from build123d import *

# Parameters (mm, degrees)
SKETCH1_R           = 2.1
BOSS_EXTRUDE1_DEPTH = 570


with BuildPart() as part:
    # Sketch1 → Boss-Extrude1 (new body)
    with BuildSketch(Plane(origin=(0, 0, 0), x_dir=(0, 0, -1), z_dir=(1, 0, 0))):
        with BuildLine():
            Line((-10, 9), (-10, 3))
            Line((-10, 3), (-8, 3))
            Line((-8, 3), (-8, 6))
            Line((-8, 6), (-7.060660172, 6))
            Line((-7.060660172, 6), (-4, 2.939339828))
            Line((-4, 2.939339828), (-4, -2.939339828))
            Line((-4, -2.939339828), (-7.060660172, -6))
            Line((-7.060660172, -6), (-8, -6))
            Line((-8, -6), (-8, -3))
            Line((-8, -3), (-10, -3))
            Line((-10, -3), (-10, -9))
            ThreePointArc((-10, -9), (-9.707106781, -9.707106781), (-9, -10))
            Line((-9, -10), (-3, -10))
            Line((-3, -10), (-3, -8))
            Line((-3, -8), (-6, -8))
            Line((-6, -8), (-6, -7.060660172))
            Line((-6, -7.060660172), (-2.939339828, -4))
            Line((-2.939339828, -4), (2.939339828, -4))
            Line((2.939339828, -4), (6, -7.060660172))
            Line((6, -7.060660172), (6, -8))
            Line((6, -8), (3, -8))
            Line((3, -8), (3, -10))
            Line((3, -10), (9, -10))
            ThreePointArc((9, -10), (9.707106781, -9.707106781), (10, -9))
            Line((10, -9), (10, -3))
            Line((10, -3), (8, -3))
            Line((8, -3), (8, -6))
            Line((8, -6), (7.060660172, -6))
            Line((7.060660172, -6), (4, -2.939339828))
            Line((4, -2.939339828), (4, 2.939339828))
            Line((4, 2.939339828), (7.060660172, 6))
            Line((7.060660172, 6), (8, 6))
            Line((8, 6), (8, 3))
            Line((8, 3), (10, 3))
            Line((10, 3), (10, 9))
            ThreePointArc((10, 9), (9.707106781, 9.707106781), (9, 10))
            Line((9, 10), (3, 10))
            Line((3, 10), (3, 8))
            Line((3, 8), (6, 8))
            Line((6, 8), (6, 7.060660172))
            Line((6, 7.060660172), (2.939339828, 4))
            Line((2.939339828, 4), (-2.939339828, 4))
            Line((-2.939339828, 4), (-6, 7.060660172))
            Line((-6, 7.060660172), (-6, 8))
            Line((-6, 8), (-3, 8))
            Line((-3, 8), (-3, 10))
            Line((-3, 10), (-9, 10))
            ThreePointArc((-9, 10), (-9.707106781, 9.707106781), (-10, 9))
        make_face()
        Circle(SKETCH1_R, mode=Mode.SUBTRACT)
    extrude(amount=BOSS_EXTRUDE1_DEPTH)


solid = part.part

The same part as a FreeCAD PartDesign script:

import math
import FreeCAD as App
import Part
import Sketcher

doc = App.newDocument("Part")
body = doc.addObject("PartDesign::Body", "Body")

sketch1 = doc.addObject("Sketcher::SketchObject", "Sketch")
body.addObject(sketch1)
sketch1.AttachmentSupport = (doc.YZ_Plane, [""])
sketch1.MapMode = "FlatFace"
sketch1.addGeometry([
    Part.LineSegment(App.Vector(9, 10, 0), App.Vector(3, 10, 0)),
    Part.LineSegment(App.Vector(3, 10, 0), App.Vector(3, 8, 0)),
    Part.LineSegment(App.Vector(3, 8, 0), App.Vector(6, 8, 0)),
    Part.LineSegment(App.Vector(6, 8, 0), App.Vector(6, 7.1, 0)),
    Part.LineSegment(App.Vector(6, 7.1, 0), App.Vector(2.9, 4, 0)),
    Part.LineSegment(App.Vector(2.9, 4, 0), App.Vector(-2.9, 4, 0)),
    Part.LineSegment(App.Vector(-2.9, 4, 0), App.Vector(-6, 7.1, 0)),
    Part.LineSegment(App.Vector(-6, 7.1, 0), App.Vector(-6, 8, 0)),
    Part.LineSegment(App.Vector(-6, 8, 0), App.Vector(-3, 8, 0)),
    Part.LineSegment(App.Vector(-3, 8, 0), App.Vector(-3, 10, 0)),
    Part.LineSegment(App.Vector(-3, 10, 0), App.Vector(-9, 10, 0)),
    Part.ArcOfCircle(Part.Circle(App.Vector(-9, 9, 0), App.Vector(0, 0, 1), 1), math.radians(90), math.radians(180)),
    Part.LineSegment(App.Vector(-10, 9, 0), App.Vector(-10, 3, 0)),
    Part.LineSegment(App.Vector(-10, 3, 0), App.Vector(-8, 3, 0)),
    Part.LineSegment(App.Vector(-8, 3, 0), App.Vector(-8, 6, 0)),
    Part.LineSegment(App.Vector(-8, 6, 0), App.Vector(-7.1, 6, 0)),
    Part.LineSegment(App.Vector(-7.1, 6, 0), App.Vector(-4, 2.9, 0)),
    Part.LineSegment(App.Vector(-4, 2.9, 0), App.Vector(-4, -2.9, 0)),
    Part.LineSegment(App.Vector(-4, -2.9, 0), App.Vector(-7.1, -6, 0)),
    Part.LineSegment(App.Vector(-7.1, -6, 0), App.Vector(-8, -6, 0)),
    Part.LineSegment(App.Vector(-8, -6, 0), App.Vector(-8, -3, 0)),
    Part.LineSegment(App.Vector(-8, -3, 0), App.Vector(-10, -3, 0)),
    Part.LineSegment(App.Vector(-10, -3, 0), App.Vector(-10, -9, 0)),
    Part.ArcOfCircle(Part.Circle(App.Vector(-9, -9, 0), App.Vector(0, 0, 1), 1), math.radians(-180), math.radians(-90)),
    Part.LineSegment(App.Vector(-9, -10, 0), App.Vector(-3, -10, 0)),
    Part.LineSegment(App.Vector(-3, -10, 0), App.Vector(-3, -8, 0)),
    Part.LineSegment(App.Vector(-3, -8, 0), App.Vector(-6, -8, 0)),
    Part.LineSegment(App.Vector(-6, -8, 0), App.Vector(-6, -7.1, 0)),
    Part.LineSegment(App.Vector(-6, -7.1, 0), App.Vector(-2.9, -4, 0)),
    Part.LineSegment(App.Vector(-2.9, -4, 0), App.Vector(2.9, -4, 0)),
    Part.LineSegment(App.Vector(2.9, -4, 0), App.Vector(6, -7.1, 0)),
    Part.LineSegment(App.Vector(6, -7.1, 0), App.Vector(6, -8, 0)),
    Part.LineSegment(App.Vector(6, -8, 0), App.Vector(3, -8, 0)),
    Part.LineSegment(App.Vector(3, -8, 0), App.Vector(3, -10, 0)),
    Part.LineSegment(App.Vector(3, -10, 0), App.Vector(9, -10, 0)),
    Part.ArcOfCircle(Part.Circle(App.Vector(9, -9, 0), App.Vector(0, 0, 1), 1), math.radians(-90), math.radians(0)),
    Part.LineSegment(App.Vector(10, -9, 0), App.Vector(10, -3, 0)),
    Part.LineSegment(App.Vector(10, -3, 0), App.Vector(8, -3, 0)),
    Part.LineSegment(App.Vector(8, -3, 0), App.Vector(8, -6, 0)),
    Part.LineSegment(App.Vector(8, -6, 0), App.Vector(7.1, -6, 0)),
    Part.LineSegment(App.Vector(7.1, -6, 0), App.Vector(4, -2.9, 0)),
    Part.LineSegment(App.Vector(4, -2.9, 0), App.Vector(4, 2.9, 0)),
    Part.LineSegment(App.Vector(4, 2.9, 0), App.Vector(7.1, 6, 0)),
    Part.LineSegment(App.Vector(7.1, 6, 0), App.Vector(8, 6, 0)),
    Part.LineSegment(App.Vector(8, 6, 0), App.Vector(8, 3, 0)),
    Part.LineSegment(App.Vector(8, 3, 0), App.Vector(10, 3, 0)),
    Part.LineSegment(App.Vector(10, 3, 0), App.Vector(10, 9, 0)),
    Part.ArcOfCircle(Part.Circle(App.Vector(9, 9, 0), App.Vector(0, 0, 1), 1), math.radians(0), math.radians(90)),
    Part.Circle(App.Vector(0, 0, 0), App.Vector(0, 0, 1), 2.1),
], False)
sketch1.addConstraint([
    Sketcher.Constraint("Coincident", 0, 2, 1, 1),
    Sketcher.Constraint("Coincident", 1, 2, 2, 1),
    Sketcher.Constraint("Coincident", 2, 2, 3, 1),
    Sketcher.Constraint("Coincident", 3, 2, 4, 1),
    Sketcher.Constraint("Coincident", 4, 2, 5, 1),
    Sketcher.Constraint("Coincident", 5, 2, 6, 1),
    Sketcher.Constraint("Coincident", 6, 2, 7, 1),
    Sketcher.Constraint("Coincident", 7, 2, 8, 1),
    Sketcher.Constraint("Coincident", 8, 2, 9, 1),
    Sketcher.Constraint("Coincident", 9, 2, 10, 1),
    Sketcher.Constraint("Tangent", 10, 2, 11, 1),
    Sketcher.Constraint("Tangent", 11, 2, 12, 1),
    Sketcher.Constraint("Coincident", 12, 2, 13, 1),
    Sketcher.Constraint("Coincident", 13, 2, 14, 1),
    Sketcher.Constraint("Coincident", 14, 2, 15, 1),
    Sketcher.Constraint("Coincident", 15, 2, 16, 1),
    Sketcher.Constraint("Coincident", 16, 2, 17, 1),
    Sketcher.Constraint("Coincident", 17, 2, 18, 1),
    Sketcher.Constraint("Coincident", 18, 2, 19, 1),
    Sketcher.Constraint("Coincident", 19, 2, 20, 1),
    Sketcher.Constraint("Coincident", 20, 2, 21, 1),
    Sketcher.Constraint("Coincident", 21, 2, 22, 1),
    Sketcher.Constraint("Tangent", 22, 2, 23, 1),
    Sketcher.Constraint("Tangent", 23, 2, 24, 1),
    Sketcher.Constraint("Coincident", 24, 2, 25, 1),
    Sketcher.Constraint("Coincident", 25, 2, 26, 1),
    Sketcher.Constraint("Coincident", 26, 2, 27, 1),
    Sketcher.Constraint("Coincident", 27, 2, 28, 1),
    Sketcher.Constraint("Coincident", 28, 2, 29, 1),
    Sketcher.Constraint("Coincident", 29, 2, 30, 1),
    Sketcher.Constraint("Coincident", 30, 2, 31, 1),
    Sketcher.Constraint("Coincident", 31, 2, 32, 1),
    Sketcher.Constraint("Coincident", 32, 2, 33, 1),
    Sketcher.Constraint("Coincident", 33, 2, 34, 1),
    Sketcher.Constraint("Tangent", 34, 2, 35, 1),
    Sketcher.Constraint("Tangent", 35, 2, 36, 1),
    Sketcher.Constraint("Coincident", 36, 2, 37, 1),
    Sketcher.Constraint("Coincident", 37, 2, 38, 1),
    Sketcher.Constraint("Coincident", 38, 2, 39, 1),
    Sketcher.Constraint("Coincident", 39, 2, 40, 1),
    Sketcher.Constraint("Coincident", 40, 2, 41, 1),
    Sketcher.Constraint("Coincident", 41, 2, 42, 1),
    Sketcher.Constraint("Coincident", 42, 2, 43, 1),
    Sketcher.Constraint("Coincident", 43, 2, 44, 1),
    Sketcher.Constraint("Coincident", 44, 2, 45, 1),
    Sketcher.Constraint("Coincident", 45, 2, 46, 1),
    Sketcher.Constraint("Tangent", 46, 2, 47, 1),
    Sketcher.Constraint("Tangent", 47, 2, 0, 1),
    Sketcher.Constraint("Horizontal", 0),
    Sketcher.Constraint("Vertical", 1),
    Sketcher.Constraint("Horizontal", 2),
    Sketcher.Constraint("Vertical", 3),
    Sketcher.Constraint("Horizontal", 5),
    Sketcher.Constraint("Vertical", 7),
    Sketcher.Constraint("Horizontal", 8),
    Sketcher.Constraint("Vertical", 9),
    Sketcher.Constraint("Horizontal", 10),
    Sketcher.Constraint("Vertical", 12),
    Sketcher.Constraint("Horizontal", 13),
    Sketcher.Constraint("Vertical", 14),
    Sketcher.Constraint("Horizontal", 15),
    Sketcher.Constraint("Vertical", 17),
    Sketcher.Constraint("Horizontal", 19),
    Sketcher.Constraint("Vertical", 20),
    Sketcher.Constraint("Horizontal", 21),
    Sketcher.Constraint("Vertical", 22),
    Sketcher.Constraint("Horizontal", 24),
    Sketcher.Constraint("Vertical", 25),
    Sketcher.Constraint("Horizontal", 26),
    Sketcher.Constraint("Vertical", 27),
    Sketcher.Constraint("Horizontal", 29),
    Sketcher.Constraint("Vertical", 31),
    Sketcher.Constraint("Horizontal", 32),
    Sketcher.Constraint("Vertical", 33),
    Sketcher.Constraint("Horizontal", 34),
    Sketcher.Constraint("Vertical", 36),
    Sketcher.Constraint("Horizontal", 37),
    Sketcher.Constraint("Vertical", 38),
    Sketcher.Constraint("Horizontal", 39),
    Sketcher.Constraint("Vertical", 41),
    Sketcher.Constraint("Horizontal", 43),
    Sketcher.Constraint("Vertical", 44),
    Sketcher.Constraint("Horizontal", 45),
    Sketcher.Constraint("Vertical", 46),
    Sketcher.Constraint("Coincident", 48, 3, -1, 1),
    Sketcher.Constraint("Equal", 11, 23),
    Sketcher.Constraint("Equal", 23, 35),
    Sketcher.Constraint("Equal", 35, 47),
    Sketcher.Constraint("Symmetric", 11, 3, 35, 3, -1, 1),
    Sketcher.Constraint("Symmetric", 23, 3, 47, 3, -1, 1),
    Sketcher.Constraint("Symmetric", 1, 2, 25, 2, -1, 1),
    Sketcher.Constraint("Symmetric", 3, 2, 27, 2, -1, 1),
    Sketcher.Constraint("Symmetric", 4, 2, 28, 2, -1, 1),
    Sketcher.Constraint("Symmetric", 6, 2, 30, 2, -1, 1),
    Sketcher.Constraint("Symmetric", 8, 2, 32, 2, -1, 1),
    Sketcher.Constraint("Symmetric", 13, 2, 37, 2, -1, 1),
    Sketcher.Constraint("Symmetric", 15, 2, 39, 2, -1, 1),
    Sketcher.Constraint("Symmetric", 16, 2, 40, 2, -1, 1),
    Sketcher.Constraint("Symmetric", 18, 2, 42, 2, -1, 1),
    Sketcher.Constraint("Symmetric", 20, 2, 44, 2, -1, 1),
    Sketcher.Constraint("Symmetric", 23, 3, 35, 3, -2),
    Sketcher.Constraint("Symmetric", 3, 2, 6, 2, -2),
    Sketcher.Constraint("Symmetric", 1, 2, 8, 2, -2),
    Sketcher.Constraint("Symmetric", 20, 2, 37, 2, -2),
    Sketcher.Constraint("Symmetric", 18, 2, 39, 2, -2),
    Sketcher.Constraint("Perpendicular", 4, 6),
    Sketcher.Constraint("Parallel", 6, 16),
    Sketcher.Constraint("Perpendicular", 16, 18),
    Sketcher.Constraint("Perpendicular", 28, 30),
    Sketcher.Constraint("Perpendicular", 40, 42),
    Sketcher.Constraint("Horizontal", 17, 2, 40, 2),
    Sketcher.Constraint("Equal", 45, 1),
    Sketcher.Constraint("Equal", 43, 3),
    Sketcher.Constraint("Equal", 34, 12),
    Sketcher.Constraint("Equal", 32, 14),
    Sketcher.Constraint("Equal", 29, 17),
    Sketcher.Constraint("Equal", 6, 16),
    Sketcher.Constraint("Radius", 11, 1.0),
    Sketcher.Constraint("Diameter", 48, 4.2),
    Sketcher.Constraint("DistanceX", 0, 2, 0, 1, 6.0),
    Sketcher.Constraint("DistanceX", 2, 1, 2, 2, 3.0),
    Sketcher.Constraint("DistanceX", 13, 1, 13, 2, 2.0),
    Sketcher.Constraint("DistanceX", 11, 3, -1, 1, 9.0),
    Sketcher.Constraint("DistanceY", -1, 1, 4, 2, 4.0),
    Sketcher.Constraint("DistanceX", 5, 2, 5, 1, 5.87868),
])
pad1 = doc.addObject("PartDesign::Pad", "Pad")
body.addObject(pad1)
pad1.Profile = sketch1
pad1.Length = 570

doc.recompute()
